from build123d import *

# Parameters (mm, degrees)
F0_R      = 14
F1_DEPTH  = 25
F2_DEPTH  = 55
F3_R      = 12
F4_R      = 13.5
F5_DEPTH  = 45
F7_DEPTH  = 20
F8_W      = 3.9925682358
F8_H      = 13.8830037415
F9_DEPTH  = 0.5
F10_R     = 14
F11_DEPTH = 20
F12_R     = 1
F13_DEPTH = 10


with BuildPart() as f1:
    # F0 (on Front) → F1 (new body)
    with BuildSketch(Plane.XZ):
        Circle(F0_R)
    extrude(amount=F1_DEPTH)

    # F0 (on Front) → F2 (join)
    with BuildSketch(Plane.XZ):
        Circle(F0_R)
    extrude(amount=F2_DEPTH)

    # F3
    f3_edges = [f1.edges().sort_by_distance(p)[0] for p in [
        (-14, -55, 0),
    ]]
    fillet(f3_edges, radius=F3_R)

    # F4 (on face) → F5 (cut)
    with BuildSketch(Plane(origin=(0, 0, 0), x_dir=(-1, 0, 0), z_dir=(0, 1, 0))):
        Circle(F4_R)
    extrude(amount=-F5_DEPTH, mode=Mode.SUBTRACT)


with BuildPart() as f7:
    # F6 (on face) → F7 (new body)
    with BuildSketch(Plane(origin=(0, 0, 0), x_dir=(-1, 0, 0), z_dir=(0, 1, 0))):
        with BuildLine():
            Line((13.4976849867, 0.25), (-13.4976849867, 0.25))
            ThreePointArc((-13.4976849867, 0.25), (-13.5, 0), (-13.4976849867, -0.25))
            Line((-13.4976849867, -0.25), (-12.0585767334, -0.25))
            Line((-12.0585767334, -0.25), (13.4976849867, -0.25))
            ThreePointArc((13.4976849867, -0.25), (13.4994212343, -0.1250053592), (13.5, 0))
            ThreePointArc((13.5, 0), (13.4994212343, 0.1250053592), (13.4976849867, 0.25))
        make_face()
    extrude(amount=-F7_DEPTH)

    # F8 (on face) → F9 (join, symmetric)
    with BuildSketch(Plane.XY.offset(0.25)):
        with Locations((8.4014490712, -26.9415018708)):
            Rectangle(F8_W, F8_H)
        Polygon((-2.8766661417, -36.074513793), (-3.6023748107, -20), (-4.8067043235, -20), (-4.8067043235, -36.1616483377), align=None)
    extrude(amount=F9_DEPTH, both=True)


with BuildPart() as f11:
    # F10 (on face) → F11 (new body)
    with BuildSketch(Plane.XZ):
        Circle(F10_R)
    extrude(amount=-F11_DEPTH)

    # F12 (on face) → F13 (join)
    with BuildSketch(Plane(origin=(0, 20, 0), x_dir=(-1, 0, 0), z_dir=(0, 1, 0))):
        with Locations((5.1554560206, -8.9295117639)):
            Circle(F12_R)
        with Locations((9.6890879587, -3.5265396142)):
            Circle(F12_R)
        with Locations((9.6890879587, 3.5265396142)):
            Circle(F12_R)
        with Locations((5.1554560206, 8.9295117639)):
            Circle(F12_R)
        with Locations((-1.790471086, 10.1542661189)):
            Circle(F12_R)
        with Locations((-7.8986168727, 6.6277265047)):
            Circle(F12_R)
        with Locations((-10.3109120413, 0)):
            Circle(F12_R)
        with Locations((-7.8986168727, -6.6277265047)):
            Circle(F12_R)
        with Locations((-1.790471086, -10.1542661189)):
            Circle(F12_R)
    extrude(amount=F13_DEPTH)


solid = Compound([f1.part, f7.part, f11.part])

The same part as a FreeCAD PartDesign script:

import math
import FreeCAD as App
import Part
import Sketcher
Q = App.Units.Quantity


def edges_at(feature, points):
    """Names of the edges that pass closest to the given points."""
    edges = feature.Shape.Edges
    near = lambda p: min(range(len(edges)), key=lambda i: edges[i].distToShape(Part.Vertex(*p))[0])
    return sorted({f"Edge{near(p) + 1}" for p in points})


def add_polygon(sketch, points):
    """Adds a closed chain of lines whose ends are joined by coincident constraints."""
    first, n = sketch.GeometryCount, len(points)
    for a, b in zip(points, points[1:] + points[:1]):
        sketch.addGeometry(Part.LineSegment(App.Vector(*a, 0), App.Vector(*b, 0)), False)
    for i in range(n):
        sketch.addConstraint(Sketcher.Constraint("Coincident", first + i, 2, first + (i + 1) % n, 1))

doc = App.newDocument("Part")
body = doc.addObject("PartDesign::Body", "Body")

sketch1 = body.newObject("Sketcher::SketchObject", "Sketch")
sketch1.AttachmentSupport = (doc.getObject("XZ_Plane"), [""])
sketch1.MapMode = "FlatFace"
sketch1.addGeometry(Part.Circle(App.Vector(0, 0, 0), App.Vector(0, 0, 1), 14), False)
sketch1.addConstraint(Sketcher.Constraint("Coincident", 0, 3, -1, 1))
sketch1.addConstraint(Sketcher.Constraint("Diameter", 0, Q("28 mm")))
pad1 = body.newObject("PartDesign::Pad", "Pad")
pad1.Profile = sketch1
pad1.Length = 25

sketch2 = body.newObject("Sketcher::SketchObject", "Sketch001")
sketch2.AttachmentSupport = (doc.getObject("XZ_Plane"), [""])
sketch2.MapMode = "FlatFace"
sketch2.addGeometry(Part.Circle(App.Vector(0, 0, 0), App.Vector(0, 0, 1), 14), False)
sketch2.addConstraint(Sketcher.Constraint("Coincident", 0, 3, -1, 1))
sketch2.addConstraint(Sketcher.Constraint("Diameter", 0, Q("28 mm")))
pad2 = body.newObject("PartDesign::Pad", "Pad001")
pad2.Profile = sketch2
pad2.Length = 55
doc.recompute()

fillet = body.newObject("PartDesign::Fillet", "Fillet")
fillet.Base = (pad2, edges_at(pad2, [(-14, -55, 0)]))
fillet.Radius = 12

sketch3 = body.newObject("Sketcher::SketchObject", "Sketch002")
sketch3.AttachmentSupport = (doc.getObject("XZ_Plane"), [""])
sketch3.MapMode = "FlatFace"
sketch3.addGeometry(Part.Circle(App.Vector(0, 0, 0), App.Vector(0, 0, 1), 13.5), False)
sketch3.addConstraint(Sketcher.Constraint("Coincident", 0, 3, -1, 1))
sketch3.addConstraint(Sketcher.Constraint("Diameter", 0, Q("27 mm")))
pocket1 = body.newObject("PartDesign::Pocket", "Pocket")
pocket1.Profile = sketch3
pocket1.Length = 45
pocket1.Reversed = True
body2 = doc.addObject("PartDesign::Body", "Body001")

sketch4 = body2.newObject("Sketcher::SketchObject", "Sketch003")
sketch4.AttachmentSupport = (doc.getObject("XZ_Plane001"), [""])
sketch4.MapMode = "FlatFace"
sketch4.addGeometry(Part.LineSegment(App.Vector(-13.497685, 0.25, 0), App.Vector(13.497685, 0.25, 0)), False)
sketch4.addGeometry(Part.ArcOfCircle(Part.Circle(App.Vector(0, 0, 0), App.Vector(0, 0, 1), 13.5), math.radians(-1.061094), math.radians(1.061094)), False)
sketch4.addGeometry(Part.LineSegment(App.Vector(13.497685, -0.25, 0), App.Vector(-13.497685, -0.25, 0)), False)
sketch4.addGeometry(Part.ArcOfCircle(Part.Circle(App.Vector(-0.000001, 0, 0), App.Vector(0, 0, 1), 13.499999), math.radians(180), math.radians(181.061094)), False)
sketch4.addGeometry(Part.ArcOfCircle(Part.Circle(App.Vector(-0.000001, 0, 0), App.Vector(0, 0, 1), 13.499999), math.radians(178.938906), math.radians(180)), False)
sketch4.addConstraint(Sketcher.Constraint("Coincident", 0, 2, 1, 2))
sketch4.addConstraint(Sketcher.Constraint("Coincident", 1, 1, 2, 1))
sketch4.addConstraint(Sketcher.Constraint("Coincident", 2, 2, 3, 2))
sketch4.addConstraint(Sketcher.Constraint("Tangent", 3, 1, 4, 2))
sketch4.addConstraint(Sketcher.Constraint("Coincident", 4, 1, 0, 1))
sketch4.addConstraint(Sketcher.Constraint("Horizontal", 0))
sketch4.addConstraint(Sketcher.Constraint("Horizontal", 2))
sketch4.addConstraint(Sketcher.Constraint("Coincident", 1, 3, -1, 1))
sketch4.addConstraint(Sketcher.Constraint("Coincident", 3, 3, -1, 1))
sketch4.addConstraint(Sketcher.Constraint("Equal", 1, 3))
sketch4.addConstraint(Sketcher.Constraint("Equal", 3, 4))
sketch4.addConstraint(Sketcher.Constraint("PointOnObject", 3, 1, -1))
sketch4.addConstraint(Sketcher.Constraint("Vertical", 0, 2, 1, 1))
sketch4.addConstraint(Sketcher.Constraint("Radius", 1, Q("13.5 mm")))
sketch4.addConstraint(Sketcher.Constraint("DistanceY", 1, 1, 0, 2, Q("0.5 mm")))
pad3 = body2.newObject("PartDesign::Pad", "Pad002")
pad3.Profile = sketch4
pad3.Length = 20

sketch5 = body2.newObject("Sketcher::SketchObject", "Sketch004")
sketch5.AttachmentSupport = (doc.getObject("XY_Plane001"), [""])
sketch5.MapMode = "FlatFace"
sketch5.AttachmentOffset = App.Placement(App.Vector(0, 0, 0.25), App.Rotation())
add_polygon(sketch5, [(6.405165, -20), (6.405165, -33.883004), (10.397733, -33.883004), (10.397733, -20)])
add_polygon(sketch5, [(-2.876666, -36.074514), (-3.602375, -20), (-4.806704, -20), (-4.806704, -36.161648)])
sketch5.addConstraint(Sketcher.Constraint("Vertical", 0))
sketch5.addConstraint(Sketcher.Constraint("Horizontal", 1))
sketch5.addConstraint(Sketcher.Constraint("Vertical", 2))
sketch5.addConstraint(Sketcher.Constraint("Horizontal", 3))
sketch5.addConstraint(Sketcher.Constraint("Horizontal", 5))
sketch5.addConstraint(Sketcher.Constraint("Vertical", 6))
sketch5.addConstraint(Sketcher.Constraint("Perpendicular", 4, 7))
sketch5.addConstraint(Sketcher.Constraint("Horizontal", 3, 2, 4, 2))
sketch5.addConstraint(Sketcher.Constraint("DistanceY", 2, 2, -1, 1, Q("20 mm")))
sketch5.addConstraint(Sketcher.Constraint("DistanceX", 1, 1, 1, 2, Q("3.992568 mm")))
sketch5.addConstraint(Sketcher.Constraint("DistanceX", 5, 2, 5, 1, Q("1.20433 mm")))
sketch5.addConstraint(Sketcher.Constraint("DistanceY", 6, 2, 6, 1, Q("16.161648 mm")))
sketch5.addConstraint(Sketcher.Constraint("DistanceX", 7, 2, 1, 2, Q("13.274399 mm")))
sketch5.addConstraint(Sketcher.Constraint("DistanceY", 0, 2, 0, 1, Q("13.883004 mm")))
sketch5.addConstraint(Sketcher.Constraint("DistanceX", 4, 2, 3, 2, Q("10.00754 mm")))
sketch5.addConstraint(Sketcher.Constraint("DistanceX", -1, 1, 0, 2, Q("6.405165 mm")))
pad4 = body2.newObject("PartDesign::Pad", "Pad003")
pad4.Profile = sketch5
pad4.Length = 1
pad4.Midplane = True
body3 = doc.addObject("PartDesign::Body", "Body002")

sketch6 = body3.newObject("Sketcher::SketchObject", "Sketch005")
sketch6.AttachmentSupport = (doc.getObject("XZ_Plane002"), [""])
sketch6.MapMode = "FlatFace"
sketch6.addGeometry(Part.Circle(App.Vector(0, 0, 0), App.Vector(0, 0, 1), 14), False)
sketch6.addConstraint(Sketcher.Constraint("Coincident", 0, 3, -1, 1))
sketch6.addConstraint(Sketcher.Constraint("Diameter", 0, Q("28 mm")))
pad5 = body3.newObject("PartDesign::Pad", "Pad004")
pad5.Profile = sketch6
pad5.Length = 20
pad5.Reversed = True

sketch7 = body3.newObject("Sketcher::SketchObject", "Sketch006")
sketch7.AttachmentSupport = (doc.getObject("XZ_Plane002"), [""])
sketch7.MapMode = "FlatFace"
sketch7.AttachmentOffset = App.Placement(App.Vector(0, 0, -20), App.Rotation())
sketch7.addGeometry(Part.Circle(App.Vector(-5.155456, -8.929512, 0), App.Vector(0, 0, 1), 1), False)
sketch7.addGeometry(Part.Circle(App.Vector(-9.689088, -3.52654, 0), App.Vector(0, 0, 1), 1), False)
sketch7.addGeometry(Part.Circle(App.Vector(-9.689088, 3.52654, 0), App.Vector(0, 0, 1), 1), False)
sketch7.addGeometry(Part.Circle(App.Vector(-5.155456, 8.929512, 0), App.Vector(0, 0, 1), 1), False)
sketch7.addGeometry(Part.Circle(App.Vector(1.790471, 10.154266, 0), App.Vector(0, 0, 1), 1), False)
sketch7.addGeometry(Part.Circle(App.Vector(7.898617, 6.627727, 0), App.Vector(0, 0, 1), 1), False)
sketch7.addGeometry(Part.Circle(App.Vector(10.310912, 0, 0), App.Vector(0, 0, 1), 1), False)
sketch7.addGeometry(Part.Circle(App.Vector(7.898617, -6.627727, 0), App.Vector(0, 0, 1), 1), False)
sketch7.addGeometry(Part.Circle(App.Vector(1.790471, -10.154266, 0), App.Vector(0, 0, 1), 1), False)
sketch7.addConstraint(Sketcher.Constraint("Equal", 0, 1))
sketch7.addConstraint(Sketcher.Constraint("Equal", 1, 2))
sketch7.addConstraint(Sketcher.Constraint("Equal", 2, 3))
sketch7.addConstraint(Sketcher.Constraint("Equal", 3, 4))
sketch7.addConstraint(Sketcher.Constraint("Equal", 4, 5))
sketch7.addConstraint(Sketcher.Constraint("Equal", 5, 6))
sketch7.addConstraint(Sketcher.Constraint("Equal", 6, 7))
sketch7.addConstraint(Sketcher.Constraint("Equal", 7, 8))
sketch7.addConstraint(Sketcher.Constraint("Symmetric", 1, 3, 2, 3, -1))
sketch7.addConstraint(Sketcher.Constraint("Symmetric", 0, 3, 3, 3, -1))
sketch7.addConstraint(Sketcher.Constraint("Symmetric", 5, 3, 7, 3, -1))
sketch7.addConstraint(Sketcher.Constraint("Symmetric", 4, 3, 8, 3, -1))
sketch7.addConstraint(Sketcher.Constraint("PointOnObject", 6, 3, -1))
sketch7.addConstraint(Sketcher.Constraint("Diameter", 0, Q("2 mm")))
sketch7.addConstraint(Sketcher.Constraint("DistanceX", 1, 3, 6, 3, Q("20 mm")))
sketch7.addConstraint(Sketcher.Constraint("DistanceY", 0, 3, -1, 1, Q("8.929512 mm")))
sketch7.addConstraint(Sketcher.Constraint("DistanceY", 1, 3, -1, 1, Q("3.52654 mm")))
sketch7.addConstraint(Sketcher.Constraint("DistanceX", -1, 1, 4, 3, Q("1.790471 mm")))
sketch7.addConstraint(Sketcher.Constraint("DistanceX", 1, 3, 0, 3, Q("4.533632 mm")))
sketch7.addConstraint(Sketcher.Constraint("DistanceX", 2, 3, 4, 3, Q("11.479559 mm")))
sketch7.addConstraint(Sketcher.Constraint("DistanceY", 5, 3, 4, 3, Q("3.52654 mm")))
sketch7.addConstraint(Sketcher.Constraint("DistanceY", 0, 3, 5, 3, Q("15.557238 mm")))
sketch7.addConstraint(Sketcher.Constraint("DistanceX", -1, 1, 5, 3, Q("7.898617 mm")))
pad6 = body3.newObject("PartDesign::Pad", "Pad005")
pad6.Profile = sketch7
pad6.Length = 10
pad6.Reversed = True

doc.recompute()
